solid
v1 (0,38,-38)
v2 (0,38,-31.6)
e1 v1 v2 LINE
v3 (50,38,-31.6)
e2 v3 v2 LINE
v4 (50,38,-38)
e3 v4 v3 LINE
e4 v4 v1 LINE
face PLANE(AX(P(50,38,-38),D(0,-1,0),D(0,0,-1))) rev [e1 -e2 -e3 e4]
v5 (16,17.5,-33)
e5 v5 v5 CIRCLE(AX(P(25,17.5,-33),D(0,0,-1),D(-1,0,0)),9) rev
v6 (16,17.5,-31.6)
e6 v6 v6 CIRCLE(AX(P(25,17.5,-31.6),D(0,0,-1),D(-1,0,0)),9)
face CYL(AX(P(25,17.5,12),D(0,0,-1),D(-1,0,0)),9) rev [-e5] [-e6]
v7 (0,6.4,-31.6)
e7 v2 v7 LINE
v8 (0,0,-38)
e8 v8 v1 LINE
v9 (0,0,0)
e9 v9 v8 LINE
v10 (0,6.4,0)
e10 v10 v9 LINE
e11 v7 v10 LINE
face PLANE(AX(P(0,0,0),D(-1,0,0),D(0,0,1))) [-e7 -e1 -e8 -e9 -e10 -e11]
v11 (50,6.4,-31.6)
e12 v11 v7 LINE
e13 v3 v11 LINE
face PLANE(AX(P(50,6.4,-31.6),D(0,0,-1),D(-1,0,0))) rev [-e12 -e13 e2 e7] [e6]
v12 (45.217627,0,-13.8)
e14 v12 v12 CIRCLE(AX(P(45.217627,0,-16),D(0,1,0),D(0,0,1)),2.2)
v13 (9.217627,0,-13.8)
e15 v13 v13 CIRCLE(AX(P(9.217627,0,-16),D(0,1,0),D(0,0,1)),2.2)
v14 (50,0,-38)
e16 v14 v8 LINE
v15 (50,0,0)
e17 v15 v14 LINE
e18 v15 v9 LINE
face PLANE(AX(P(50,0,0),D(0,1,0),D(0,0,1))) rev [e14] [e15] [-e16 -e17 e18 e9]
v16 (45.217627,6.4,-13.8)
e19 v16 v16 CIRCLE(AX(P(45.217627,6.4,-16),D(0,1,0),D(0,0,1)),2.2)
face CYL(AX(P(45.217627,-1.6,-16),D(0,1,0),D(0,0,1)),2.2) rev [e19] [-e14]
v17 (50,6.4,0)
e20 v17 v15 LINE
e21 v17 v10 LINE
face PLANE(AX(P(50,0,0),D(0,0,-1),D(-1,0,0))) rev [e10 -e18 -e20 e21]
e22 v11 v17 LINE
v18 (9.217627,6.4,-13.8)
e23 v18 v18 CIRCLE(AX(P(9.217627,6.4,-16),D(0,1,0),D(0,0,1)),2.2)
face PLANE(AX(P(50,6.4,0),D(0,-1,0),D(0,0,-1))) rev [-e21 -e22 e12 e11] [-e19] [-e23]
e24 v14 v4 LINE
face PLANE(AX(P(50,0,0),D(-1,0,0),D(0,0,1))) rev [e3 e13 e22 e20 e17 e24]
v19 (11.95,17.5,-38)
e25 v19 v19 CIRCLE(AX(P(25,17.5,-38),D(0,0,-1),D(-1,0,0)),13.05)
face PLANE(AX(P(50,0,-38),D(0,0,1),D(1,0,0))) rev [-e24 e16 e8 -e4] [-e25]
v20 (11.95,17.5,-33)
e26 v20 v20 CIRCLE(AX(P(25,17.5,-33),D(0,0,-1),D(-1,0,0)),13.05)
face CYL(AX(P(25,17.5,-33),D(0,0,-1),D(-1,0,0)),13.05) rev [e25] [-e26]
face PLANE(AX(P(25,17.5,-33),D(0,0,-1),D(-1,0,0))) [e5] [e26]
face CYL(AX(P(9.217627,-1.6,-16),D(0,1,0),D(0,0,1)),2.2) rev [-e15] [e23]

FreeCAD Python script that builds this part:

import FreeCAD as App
import Part
import Sketcher

doc = App.newDocument("Part")
body = doc.addObject("PartDesign::Body", "Body")

# Sketch on YZ plane
sketch1 = doc.addObject("Sketcher::SketchObject", "Sketch")
body.addObject(sketch1)
sketch1.AttachmentSupport = (doc.YZ_Plane, [""])
sketch1.MapMode = "FlatFace"
sketch1.addGeometry(Part.LineSegment(App.Vector(0, 0, 0), App.Vector(0, -38, 0)), False)
sketch1.addGeometry(Part.LineSegment(App.Vector(0, -38, 0), App.Vector(38, -38, 0)), False)
sketch1.addGeometry(Part.LineSegment(App.Vector(38, -38, 0), App.Vector(38, -32, 0)), False)
sketch1.addGeometry(Part.LineSegment(App.Vector(38, -32, 0), App.Vector(6, -32, 0)), False)
sketch1.addGeometry(Part.LineSegment(App.Vector(6, -32, 0), App.Vector(6, 0, 0)), False)
sketch1.addGeometry(Part.LineSegment(App.Vector(6, 0, 0), App.Vector(0, 0, 0)), False)
sketch1.addConstraint(Sketcher.Constraint("Coincident", 0, 2, 1, 1))
sketch1.addConstraint(Sketcher.Constraint("Coincident", 1, 2, 2, 1))
sketch1.addConstraint(Sketcher.Constraint("Coincident", 2, 2, 3, 1))
sketch1.addConstraint(Sketcher.Constraint("Coincident", 3, 2, 4, 1))
sketch1.addConstraint(Sketcher.Constraint("Coincident", 4, 2, 5, 1))
sketch1.addConstraint(Sketcher.Constraint("Coincident", 5, 2, 0, 1))
sketch1.addConstraint(Sketcher.Constraint("Vertical", 0))
sketch1.addConstraint(Sketcher.Constraint("Horizontal", 1))
sketch1.addConstraint(Sketcher.Constraint("Vertical", 2))
sketch1.addConstraint(Sketcher.Constraint("Horizontal", 3))
sketch1.addConstraint(Sketcher.Constraint("Vertical", 4))
sketch1.addConstraint(Sketcher.Constraint("Horizontal", 5))
sketch1.addConstraint(Sketcher.Constraint("Coincident", 5, 2, -1, 1))
sketch1.addConstraint(Sketcher.Constraint("Equal", 1, 0))
sketch1.addConstraint(Sketcher.Constraint("Equal", 5, 2))
sketch1.addConstraint(Sketcher.Constraint("DistanceX", 1, 1, 1, 2, 38.0))
sketch1.addConstraint(Sketcher.Constraint("DistanceX", 3, 2, 3, 1, 31.6))
pad1 = doc.addObject("PartDesign::Pad", "Pad")
body.addObject(pad1)
pad1.Profile = sketch1
pad1.Length = 50

# Sketch on XY plane
sketch2 = doc.addObject("Sketcher::SketchObject", "Sketch001")
body.addObject(sketch2)
sketch2.AttachmentSupport = (doc.XY_Plane, [""])
sketch2.MapMode = "FlatFace"
sketch2.AttachmentOffset = App.Placement(App.Vector(0, 0, -38), App.Rotation())
sketch2.addGeometry(Part.Circle(App.Vector(25, 18, 0), App.Vector(0, 0, 1), 9), False)
sketch2.addConstraint(Sketcher.Constraint("Diameter", 0, 18.0))
sketch2.addConstraint(Sketcher.Constraint("DistanceX", -1, 1, 0, 3, 25.0))
sketch2.addConstraint(Sketcher.Constraint("DistanceY", -1, 1, 0, 3, 17.5))
pocket1 = doc.addObject("PartDesign::Pocket", "Pocket")
body.addObject(pocket1)
pocket1.Profile = sketch2
pocket1.Length = 50
pocket1.Reversed = True

# Sketch on XY plane
sketch3 = doc.addObject("Sketcher::SketchObject", "Sketch002")
body.addObject(sketch3)
sketch3.AttachmentSupport = (doc.XY_Plane, [""])
sketch3.MapMode = "FlatFace"
sketch3.AttachmentOffset = App.Placement(App.Vector(0, 0, -38), App.Rotation())
sketch3.addGeometry(Part.Circle(App.Vector(25, 18, 0), App.Vector(0, 0, 1), 13), False)
sketch3.addConstraint(Sketcher.Constraint("Diameter", 0, 26.1))
sketch3.addConstraint(Sketcher.Constraint("DistanceX", -1, 1, 0, 3, 25.0))
sketch3.addConstraint(Sketcher.Constraint("DistanceY", -1, 1, 0, 3, 17.5))
pocket2 = doc.addObject("PartDesign::Pocket", "Pocket001")
body.addObject(pocket2)
pocket2.Profile = sketch3
pocket2.Length = 5
pocket2.Reversed = True

# Sketch on XZ plane
sketch4 = doc.addObject("Sketcher::SketchObject", "Sketch003")
body.addObject(sketch4)
sketch4.AttachmentSupport = (doc.XZ_Plane, [""])
sketch4.MapMode = "FlatFace"
sketch4.AttachmentOffset = App.Placement(App.Vector(0, 0, -6.4), App.Rotation())
sketch4.addGeometry(Part.Circle(App.Vector(9.2, -16, 0), App.Vector(0, 0, 1), 2.2), False)
sketch4.addGeometry(Part.Circle(App.Vector(45.2, -16, 0), App.Vector(0, 0, 1), 2.2), False)
sketch4.addConstraint(Sketcher.Constraint("Equal", 0, 1))
sketch4.addConstraint(Sketcher.Constraint("Horizontal", 0, 3, 1, 3))
sketch4.addConstraint(Sketcher.Constraint("Diameter", 0, 4.4))
sketch4.addConstraint(Sketcher.Constraint("DistanceY", 0, 3, -1, 1, 16.0))
sketch4.addConstraint(Sketcher.Constraint("DistanceX", 0, 3, 1, 3, 36.0))
sketch4.addConstraint(Sketcher.Constraint("DistanceX", -1, 1, 0, 3, 9.217627))
pocket3 = doc.addObject("PartDesign::Pocket", "Pocket002")
body.addObject(pocket3)
pocket3.Profile = sketch4
pocket3.Length = 8
pocket3.Reversed = True

doc.recompute()
